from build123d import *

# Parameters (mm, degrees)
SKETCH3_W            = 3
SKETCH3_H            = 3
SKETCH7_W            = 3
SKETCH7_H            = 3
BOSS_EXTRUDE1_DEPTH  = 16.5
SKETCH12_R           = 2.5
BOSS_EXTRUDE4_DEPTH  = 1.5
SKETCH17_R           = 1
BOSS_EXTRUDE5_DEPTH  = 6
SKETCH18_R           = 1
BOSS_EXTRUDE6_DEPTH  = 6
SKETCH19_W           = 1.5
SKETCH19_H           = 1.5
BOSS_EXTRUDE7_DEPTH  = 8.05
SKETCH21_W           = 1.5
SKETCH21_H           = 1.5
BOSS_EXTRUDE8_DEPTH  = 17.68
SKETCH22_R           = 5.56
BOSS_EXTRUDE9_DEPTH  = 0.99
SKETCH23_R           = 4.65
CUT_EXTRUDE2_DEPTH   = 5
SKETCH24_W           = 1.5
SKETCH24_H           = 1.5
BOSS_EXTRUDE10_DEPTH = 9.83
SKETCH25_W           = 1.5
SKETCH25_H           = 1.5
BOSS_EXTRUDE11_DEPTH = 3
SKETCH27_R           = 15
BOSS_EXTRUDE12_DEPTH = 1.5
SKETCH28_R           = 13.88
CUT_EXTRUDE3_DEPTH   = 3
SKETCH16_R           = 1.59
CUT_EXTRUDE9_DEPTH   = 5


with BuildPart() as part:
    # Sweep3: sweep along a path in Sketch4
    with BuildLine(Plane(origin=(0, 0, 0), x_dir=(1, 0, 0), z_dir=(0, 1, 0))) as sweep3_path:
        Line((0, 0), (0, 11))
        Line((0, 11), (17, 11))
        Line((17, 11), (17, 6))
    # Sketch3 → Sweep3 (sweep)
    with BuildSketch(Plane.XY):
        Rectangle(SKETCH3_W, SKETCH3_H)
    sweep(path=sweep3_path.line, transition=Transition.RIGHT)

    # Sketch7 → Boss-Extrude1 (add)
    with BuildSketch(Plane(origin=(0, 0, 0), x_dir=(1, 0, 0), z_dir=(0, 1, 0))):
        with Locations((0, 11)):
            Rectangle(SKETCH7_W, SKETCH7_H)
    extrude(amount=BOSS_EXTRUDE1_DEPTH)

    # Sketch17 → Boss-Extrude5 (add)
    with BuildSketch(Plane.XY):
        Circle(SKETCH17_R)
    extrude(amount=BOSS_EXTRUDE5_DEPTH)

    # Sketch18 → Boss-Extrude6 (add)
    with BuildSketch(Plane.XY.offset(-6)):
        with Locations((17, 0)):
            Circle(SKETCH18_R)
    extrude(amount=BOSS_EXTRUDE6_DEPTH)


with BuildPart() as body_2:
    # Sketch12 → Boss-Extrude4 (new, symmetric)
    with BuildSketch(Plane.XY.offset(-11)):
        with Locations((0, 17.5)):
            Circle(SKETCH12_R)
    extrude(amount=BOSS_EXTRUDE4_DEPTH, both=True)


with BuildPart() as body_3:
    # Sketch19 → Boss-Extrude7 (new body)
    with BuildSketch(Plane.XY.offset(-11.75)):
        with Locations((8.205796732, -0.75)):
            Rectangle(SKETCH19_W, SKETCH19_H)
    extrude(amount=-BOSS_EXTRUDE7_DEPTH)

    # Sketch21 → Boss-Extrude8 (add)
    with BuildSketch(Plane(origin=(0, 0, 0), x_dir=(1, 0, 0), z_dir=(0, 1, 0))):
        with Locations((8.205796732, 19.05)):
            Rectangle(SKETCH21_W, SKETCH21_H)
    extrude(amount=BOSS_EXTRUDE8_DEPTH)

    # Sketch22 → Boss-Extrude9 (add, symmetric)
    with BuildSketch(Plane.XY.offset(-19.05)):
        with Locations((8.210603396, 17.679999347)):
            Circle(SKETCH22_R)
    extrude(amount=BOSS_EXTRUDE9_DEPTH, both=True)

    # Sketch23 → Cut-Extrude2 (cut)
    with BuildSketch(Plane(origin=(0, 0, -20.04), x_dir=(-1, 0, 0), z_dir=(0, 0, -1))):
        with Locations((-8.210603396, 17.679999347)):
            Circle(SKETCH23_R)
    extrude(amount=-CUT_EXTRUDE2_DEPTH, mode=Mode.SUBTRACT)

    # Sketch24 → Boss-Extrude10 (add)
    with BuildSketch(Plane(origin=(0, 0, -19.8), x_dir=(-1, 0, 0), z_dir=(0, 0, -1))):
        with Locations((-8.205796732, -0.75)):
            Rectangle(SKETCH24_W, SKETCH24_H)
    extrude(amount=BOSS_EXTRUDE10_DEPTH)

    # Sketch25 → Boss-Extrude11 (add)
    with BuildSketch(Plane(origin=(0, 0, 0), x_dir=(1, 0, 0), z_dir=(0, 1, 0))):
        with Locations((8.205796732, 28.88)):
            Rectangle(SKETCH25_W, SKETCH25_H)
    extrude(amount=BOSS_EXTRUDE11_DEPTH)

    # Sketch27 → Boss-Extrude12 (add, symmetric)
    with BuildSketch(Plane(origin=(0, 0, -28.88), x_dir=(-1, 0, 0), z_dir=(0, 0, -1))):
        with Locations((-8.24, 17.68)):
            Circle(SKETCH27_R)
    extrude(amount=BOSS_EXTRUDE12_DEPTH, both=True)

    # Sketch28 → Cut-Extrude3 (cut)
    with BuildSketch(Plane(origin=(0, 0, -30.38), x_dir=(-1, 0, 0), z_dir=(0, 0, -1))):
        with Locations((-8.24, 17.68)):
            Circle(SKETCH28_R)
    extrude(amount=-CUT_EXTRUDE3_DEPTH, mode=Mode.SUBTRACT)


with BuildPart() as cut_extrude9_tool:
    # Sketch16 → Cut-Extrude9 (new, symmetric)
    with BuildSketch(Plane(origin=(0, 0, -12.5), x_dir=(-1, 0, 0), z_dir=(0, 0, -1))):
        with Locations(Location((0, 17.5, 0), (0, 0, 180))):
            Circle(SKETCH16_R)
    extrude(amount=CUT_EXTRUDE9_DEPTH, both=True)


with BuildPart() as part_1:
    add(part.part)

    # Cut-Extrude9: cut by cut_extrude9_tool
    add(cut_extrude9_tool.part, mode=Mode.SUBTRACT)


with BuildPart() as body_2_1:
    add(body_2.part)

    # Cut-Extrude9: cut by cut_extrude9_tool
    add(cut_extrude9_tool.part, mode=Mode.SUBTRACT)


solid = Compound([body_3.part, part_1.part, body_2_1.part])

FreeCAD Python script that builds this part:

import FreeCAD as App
import Part
import Sketcher
from FreeCAD import Vector

doc = App.newDocument("Part")
params = doc.addObject("Spreadsheet::Sheet", "Params")
for row, (alias, value) in enumerate([
    ("sketch1_width", "3 mm"),
    ("sketch2_width", "17 mm"),
    ("sketch2_height", "11 mm"),
    ("sketch2_height2", "5 mm"),
    ("sketch3_width", "3 mm"),
    ("pad1_length", "16.5 mm"),
    ("sketch4_diameter", "2 mm"),
    ("pad2_length", "6 mm"),
    ("sketch5_diameter", "2 mm"),
    ("pad3_length", "6 mm"),
    ("sketch6_diameter", "5 mm"),
    ("pad4_length", "3 mm"),
    ("sketch7_width", "1.5 mm"),
    ("pad5_length", "8.05 mm"),
    ("sketch8_width", "1.5 mm"),
    ("pad6_length", "17.68 mm"),
    ("sketch9_diameter", "11.12 mm"),
    ("pad7_length", "1.98 mm"),
    ("sketch10_diameter", "9.3 mm"),
    ("pocket1_length", "5 mm"),
    ("sketch11_width", "1.5 mm"),
    ("pad8_length", "9.83 mm"),
    ("sketch12_width", "1.5 mm"),
    ("pad9_length", "3 mm"),
    ("sketch13_diameter", "30 mm"),
    ("pad10_length", "3 mm"),
    ("sketch14_diameter", "27.76 mm"),
    ("pocket2_length", "3 mm"),
    ("sketch15_diameter", "3.18 mm"),
    ("pad11_length", "10 mm"),
], start=1):
    params.set(f"A{row}", alias)
    params.set(f"B{row}", "=" + value)
    params.setAlias(f"B{row}", alias)

body = doc.addObject("PartDesign::Body", "Body")

# Sketch on XY plane
sketch1 = body.newObject("Sketcher::SketchObject", "Sketch")
sketch1.AttachmentSupport = (doc.getObject("XY_Plane"), [""])
sketch1.MapMode = "FlatFace"
sketch1.addGeometry([
    Part.LineSegment(Vector(-1.5, 1.5, 0), Vector(-1.5, -1.5, 0)),
    Part.LineSegment(Vector(-1.5, -1.5, 0), Vector(1.5, -1.5, 0)),
    Part.LineSegment(Vector(1.5, -1.5, 0), Vector(1.5, 1.5, 0)),
    Part.LineSegment(Vector(1.5, 1.5, 0), Vector(-1.5, 1.5, 0)),
], False)
sketch1.addConstraint([
    Sketcher.Constraint("Coincident", 0, 2, 1, 1),
    Sketcher.Constraint("Coincident", 1, 2, 2, 1),
    Sketcher.Constraint("Coincident", 2, 2, 3, 1),
    Sketcher.Constraint("Coincident", 3, 2, 0, 1),
    Sketcher.Constraint("Vertical", 0),
    Sketcher.Constraint("Horizontal", 1),
    Sketcher.Constraint("Vertical", 2),
    Sketcher.Constraint("Horizontal", 3),
    Sketcher.Constraint("Symmetric", 0, 2, 2, 2, -1, 1),
    Sketcher.Constraint("Equal", 3, 0),
    Sketcher.Constraint("DistanceX", 1, 1, 1, 2, 3.0),
])
sketch1.setExpression("Constraints[10]", "Params.sketch1_width")

# Sketch on XZ plane
sketch2 = body.newObject("Sketcher::SketchObject", "Sketch001")
sketch2.AttachmentSupport = (doc.getObject("XZ_Plane"), [""])
sketch2.MapMode = "FlatFace"
sketch2.addGeometry([
    Part.LineSegment(Vector(0, 0, 0), Vector(0, -11, 0)),
    Part.LineSegment(Vector(0, -11, 0), Vector(17, -11, 0)),
    Part.LineSegment(Vector(17, -11, 0), Vector(17, -6, 0)),
], False)
sketch2.addConstraint([
    Sketcher.Constraint("Coincident", 0, 2, 1, 1),
    Sketcher.Constraint("Coincident", 1, 2, 2, 1),
    Sketcher.Constraint("Vertical", 0),
    Sketcher.Constraint("Horizontal", 1),
    Sketcher.Constraint("Vertical", 2),
    Sketcher.Constraint("Coincident", 0, 1, -1, 1),
    Sketcher.Constraint("DistanceX", 1, 1, 1, 2, 17.0),
    Sketcher.Constraint("DistanceY", 0, 2, 0, 1, 11.0),
    Sketcher.Constraint("DistanceY", 2, 1, 2, 2, 5.0),
])
sketch2.setExpression("Constraints[6]", "Params.sketch2_width")
sketch2.setExpression("Constraints[7]", "Params.sketch2_height")
sketch2.setExpression("Constraints[8]", "Params.sketch2_height2")
doc.recompute()

additivepipe = body.newObject("PartDesign::AdditivePipe", "AdditivePipe")
additivepipe.Profile = sketch1
additivepipe.Spine = (sketch2, ["Edge1", "Edge2", "Edge3"])
additivepipe.Transition = "Right corner"

# Sketch on XZ plane
sketch3 = body.newObject("Sketcher::SketchObject", "Sketch002")
sketch3.AttachmentSupport = (doc.getObject("XZ_Plane"), [""])
sketch3.MapMode = "FlatFace"
sketch3.addGeometry([
    Part.LineSegment(Vector(-1.5, -12.5, 0), Vector(-1.5, -9.5, 0)),
    Part.LineSegment(Vector(-1.5, -9.5, 0), Vector(1.5, -9.5, 0)),
    Part.LineSegment(Vector(1.5, -9.5, 0), Vector(1.5, -12.5, 0)),
    Part.LineSegment(Vector(1.5, -12.5, 0), Vector(-1.5, -12.5, 0)),
], False)
sketch3.addConstraint([
    Sketcher.Constraint("Coincident", 0, 2, 1, 1),
    Sketcher.Constraint("Coincident", 1, 2, 2, 1),
    Sketcher.Constraint("Coincident", 2, 2, 3, 1),
    Sketcher.Constraint("Coincident", 3, 2, 0, 1),
    Sketcher.Constraint("Vertical", 0),
    Sketcher.Constraint("Horizontal", 1),
    Sketcher.Constraint("Vertical", 2),
    Sketcher.Constraint("Horizontal", 3),
    Sketcher.Constraint("Equal", 3, 0),
    Sketcher.Constraint("DistanceX", 1, 1, 1, 2, 3.0),
    Sketcher.Constraint("DistanceX", 0, 2, -1, 1, 1.5),
    Sketcher.Constraint("DistanceY", 0, 2, -1, 1, 9.5),
])
sketch3.setExpression("Constraints[9]", "Params.sketch3_width")
pad1 = body.newObject("PartDesign::Pad", "Pad")
pad1.Profile = sketch3
pad1.setExpression("Length", "Params.pad1_length")
pad1.Reversed = True

# Sketch on XY plane
sketch4 = body.newObject("Sketcher::SketchObject", "Sketch003")
sketch4.AttachmentSupport = (doc.getObject("XY_Plane"), [""])
sketch4.MapMode = "FlatFace"
sketch4.addGeometry(Part.Circle(Vector(0, 0, 0), Vector(0, 0, 1), 1), False)
sketch4.addConstraint([
    Sketcher.Constraint("Coincident", 0, 3, -1, 1),
    Sketcher.Constraint("Diameter", 0, 2.0),
])
sketch4.setExpression("Constraints[1]", "Params.sketch4_diameter")
pad2 = body.newObject("PartDesign::Pad", "Pad001")
pad2.Profile = sketch4
pad2.setExpression("Length", "Params.pad2_length")

# Sketch on XY plane
sketch5 = body.newObject("Sketcher::SketchObject", "Sketch004")
sketch5.AttachmentSupport = (doc.getObject("XY_Plane"), [""])
sketch5.MapMode = "FlatFace"
sketch5.AttachmentOffset = App.Placement(Vector(0, 0, -6), App.Rotation())
sketch5.addGeometry(Part.Circle(Vector(17, 0, 0), Vector(0, 0, 1), 1), False)
sketch5.addConstraint([
    Sketcher.Constraint("PointOnObject", 0, 3, -1),
    Sketcher.Constraint("Diameter", 0, 2.0),
    Sketcher.Constraint("DistanceX", -1, 1, 0, 3, 17.0),
])
sketch5.setExpression("Constraints[1]", "Params.sketch5_diameter")
pad3 = body.newObject("PartDesign::Pad", "Pad002")
pad3.Profile = sketch5
pad3.setExpression("Length", "Params.pad3_length")
body2 = doc.addObject("PartDesign::Body", "Body001")

# Sketch on XY plane
sketch6 = body2.newObject("Sketcher::SketchObject", "Sketch005")
sketch6.AttachmentSupport = (doc.getObject("XY_Plane001"), [""])
sketch6.MapMode = "FlatFace"
sketch6.AttachmentOffset = App.Placement(Vector(0, 0, -11), App.Rotation())
sketch6.addGeometry(Part.Circle(Vector(0, 17.5, 0), Vector(0, 0, 1), 2.5), False)
sketch6.addConstraint([
    Sketcher.Constraint("PointOnObject", 0, 3, -2),
    Sketcher.Constraint("Diameter", 0, 5.0),
    Sketcher.Constraint("DistanceY", -1, 1, 0, 3, 17.5),
])
sketch6.setExpression("Constraints[1]", "Params.sketch6_diameter")
pad4 = body2.newObject("PartDesign::Pad", "Pad003")
pad4.Profile = sketch6
pad4.setExpression("Length", "Params.pad4_length")
pad4.Midplane = True
body3 = doc.addObject("PartDesign::Body", "Body002")

# Sketch on XY plane
sketch7 = body3.newObject("Sketcher::SketchObject", "Sketch006")
sketch7.AttachmentSupport = (doc.getObject("XY_Plane002"), [""])
sketch7.MapMode = "FlatFace"
sketch7.AttachmentOffset = App.Placement(Vector(0, 0, -11.75), App.Rotation())
sketch7.addGeometry([
    Part.LineSegment(Vector(7.5, 0, 0), Vector(7.5, -1.5, 0)),
    Part.LineSegment(Vector(7.5, -1.5, 0), Vector(9, -1.5, 0)),
    Part.LineSegment(Vector(9, -1.5, 0), Vector(9, 0, 0)),
    Part.LineSegment(Vector(9, 0, 0), Vector(7.5, 0, 0)),
], False)
sketch7.addConstraint([
    Sketcher.Constraint("Coincident", 0, 2, 1, 1),
    Sketcher.Constraint("Coincident", 1, 2, 2, 1),
    Sketcher.Constraint("Coincident", 2, 2, 3, 1),
    Sketcher.Constraint("Coincident", 3, 2, 0, 1),
    Sketcher.Constraint("Vertical", 0),
    Sketcher.Constraint("Horizontal", 1),
    Sketcher.Constraint("Vertical", 2),
    Sketcher.Constraint("Horizontal", 3),
    Sketcher.Constraint("PointOnObject", 2, 2, -1),
    Sketcher.Constraint("Equal", 3, 0),
    Sketcher.Constraint("DistanceX", 1, 1, 1, 2, 1.5),
    Sketcher.Constraint("DistanceX", -1, 1, 0, 2, 7.455797),
])
sketch7.setExpression("Constraints[10]", "Params.sketch7_width")
pad5 = body3.newObject("PartDesign::Pad", "Pad004")
pad5.Profile = sketch7
pad5.setExpression("Length", "Params.pad5_length")
pad5.Reversed = True

# Sketch on XZ plane
sketch8 = body3.newObject("Sketcher::SketchObject", "Sketch007")
sketch8.AttachmentSupport = (doc.getObject("XZ_Plane002"), [""])
sketch8.MapMode = "FlatFace"
sketch8.addGeometry([
    Part.LineSegment(Vector(7.5, -19.8, 0), Vector(7.5, -18.3, 0)),
    Part.LineSegment(Vector(7.5, -18.3, 0), Vector(9, -18.3, 0)),
    Part.LineSegment(Vector(9, -18.3, 0), Vector(9, -19.8, 0)),
    Part.LineSegment(Vector(9, -19.8, 0), Vector(7.5, -19.8, 0)),
], False)
sketch8.addConstraint([
    Sketcher.Constraint("Coincident", 0, 2, 1, 1),
    Sketcher.Constraint("Coincident", 1, 2, 2, 1),
    Sketcher.Constraint("Coincident", 2, 2, 3, 1),
    Sketcher.Constraint("Coincident", 3, 2, 0, 1),
    Sketcher.Constraint("Vertical", 0),
    Sketcher.Constraint("Horizontal", 1),
    Sketcher.Constraint("Vertical", 2),
    Sketcher.Constraint("Horizontal", 3),
    Sketcher.Constraint("Equal", 3, 0),
    Sketcher.Constraint("DistanceX", 1, 1, 1, 2, 1.5),
    Sketcher.Constraint("DistanceY", 0, 2, -1, 1, 18.3),
    Sketcher.Constraint("DistanceX", -1, 1, 0, 2, 7.455797),
])
sketch8.setExpression("Constraints[9]", "Params.sketch8_width")
pad6 = body3.newObject("PartDesign::Pad", "Pad005")
pad6.Profile = sketch8
pad6.setExpression("Length", "Params.pad6_length")
pad6.Reversed = True

# Sketch on XY plane
sketch9 = body3.newObject("Sketcher::SketchObject", "Sketch008")
sketch9.AttachmentSupport = (doc.getObject("XY_Plane002"), [""])
sketch9.MapMode = "FlatFace"
sketch9.AttachmentOffset = App.Placement(Vector(0, 0, -19.05), App.Rotation())
sketch9.addGeometry(Part.Circle(Vector(8, 18, 0), Vector(0, 0, 1), 6), False)
sketch9.addConstraint([
    Sketcher.Constraint("Diameter", 0, 11.12),
    Sketcher.Constraint("DistanceY", -1, 1, 0, 3, 17.679999),
    Sketcher.Constraint("DistanceX", -1, 1, 0, 3, 8.210603),
])
sketch9.setExpression("Constraints[0]", "Params.sketch9_diameter")
pad7 = body3.newObject("PartDesign::Pad", "Pad006")
pad7.Profile = sketch9
pad7.setExpression("Length", "Params.pad7_length")
pad7.Midplane = True

# Sketch on XY plane
sketch10 = body3.newObject("Sketcher::SketchObject", "Sketch009")
sketch10.AttachmentSupport = (doc.getObject("XY_Plane002"), [""])
sketch10.MapMode = "FlatFace"
sketch10.AttachmentOffset = App.Placement(Vector(0, 0, -20.04), App.Rotation())
sketch10.addGeometry(Part.Circle(Vector(8.2, 17.7, 0), Vector(0, 0, 1), 4.7), False)
sketch10.addConstraint([
    Sketcher.Constraint("Diameter", 0, 9.3),
    Sketcher.Constraint("DistanceY", -1, 1, 0, 3, 17.679999),
    Sketcher.Constraint("DistanceX", -1, 1, 0, 3, 8.210603),
])
sketch10.setExpression("Constraints[0]", "Params.sketch10_diameter")
pocket1 = body3.newObject("PartDesign::Pocket", "Pocket")
pocket1.Profile = sketch10
pocket1.setExpression("Length", "Params.pocket1_length")
pocket1.Reversed = True

# Sketch on XY plane
sketch11 = body3.newObject("Sketcher::SketchObject", "Sketch010")
sketch11.AttachmentSupport = (doc.getObject("XY_Plane002"), [""])
sketch11.MapMode = "FlatFace"
sketch11.AttachmentOffset = App.Placement(Vector(0, 0, -19.8), App.Rotation())
sketch11.addGeometry([
    Part.LineSegment(Vector(9, 0, 0), Vector(9, -1.5, 0)),
    Part.LineSegment(Vector(9, -1.5, 0), Vector(7.5, -1.5, 0)),
    Part.LineSegment(Vector(7.5, -1.5, 0), Vector(7.5, 0, 0)),
    Part.LineSegment(Vector(7.5, 0, 0), Vector(9, 0, 0)),
], False)
sketch11.addConstraint([
    Sketcher.Constraint("Coincident", 0, 2, 1, 1),
    Sketcher.Constraint("Coincident", 1, 2, 2, 1),
    Sketcher.Constraint("Coincident", 2, 2, 3, 1),
    Sketcher.Constraint("Coincident", 3, 2, 0, 1),
    Sketcher.Constraint("Vertical", 0),
    Sketcher.Constraint("Horizontal", 1),
    Sketcher.Constraint("Vertical", 2),
    Sketcher.Constraint("Horizontal", 3),
    Sketcher.Constraint("PointOnObject", 2, 2, -1),
    Sketcher.Constraint("Equal", 3, 0),
    Sketcher.Constraint("DistanceX", 1, 2, 1, 1, 1.5),
    Sketcher.Constraint("DistanceX", -1, 1, 0, 2, 8.955797),
])
sketch11.setExpression("Constraints[10]", "Params.sketch11_width")
pad8 = body3.newObject("PartDesign::Pad", "Pad007")
pad8.Profile = sketch11
pad8.setExpression("Length", "Params.pad8_length")
pad8.Reversed = True

# Sketch on XZ plane
sketch12 = body3.newObject("Sketcher::SketchObject", "Sketch011")
sketch12.AttachmentSupport = (doc.getObject("XZ_Plane002"), [""])
sketch12.MapMode = "FlatFace"
sketch12.addGeometry([
    Part.LineSegment(Vector(7.5, -29.6, 0), Vector(7.5, -28.1, 0)),
    Part.LineSegment(Vector(7.5, -28.1, 0), Vector(9, -28.1, 0)),
    Part.LineSegment(Vector(9, -28.1, 0), Vector(9, -29.6, 0)),
    Part.LineSegment(Vector(9, -29.6, 0), Vector(7.5, -29.6, 0)),
], False)
sketch12.addConstraint([
    Sketcher.Constraint("Coincident", 0, 2, 1, 1),
    Sketcher.Constraint("Coincident", 1, 2, 2, 1),
    Sketcher.Constraint("Coincident", 2, 2, 3, 1),
    Sketcher.Constraint("Coincident", 3, 2, 0, 1),
    Sketcher.Constraint("Vertical", 0),
    Sketcher.Constraint("Horizontal", 1),
    Sketcher.Constraint("Vertical", 2),
    Sketcher.Constraint("Horizontal", 3),
    Sketcher.Constraint("Equal", 3, 0),
    Sketcher.Constraint("DistanceX", 1, 1, 1, 2, 1.5),
    Sketcher.Constraint("DistanceY", 0, 2, -1, 1, 28.13),
    Sketcher.Constraint("DistanceX", -1, 1, 0, 2, 7.455797),
])
sketch12.setExpression("Constraints[9]", "Params.sketch12_width")
pad9 = body3.newObject("PartDesign::Pad", "Pad008")
pad9.Profile = sketch12
pad9.setExpression("Length", "Params.pad9_length")
pad9.Reversed = True

# Sketch on XY plane
sketch13 = body3.newObject("Sketcher::SketchObject", "Sketch012")
sketch13.AttachmentSupport = (doc.getObject("XY_Plane002"), [""])
sketch13.MapMode = "FlatFace"
sketch13.AttachmentOffset = App.Placement(Vector(0, 0, -28.88), App.Rotation())
sketch13.addGeometry(Part.Circle(Vector(8, 18, 0), Vector(0, 0, 1), 15), False)
sketch13.addConstraint([
    Sketcher.Constraint("Diameter", 0, 30.0),
    Sketcher.Constraint("DistanceX", -1, 1, 0, 3, 8.24),
    Sketcher.Constraint("DistanceY", -1, 1, 0, 3, 17.68),
])
sketch13.setExpression("Constraints[0]", "Params.sketch13_diameter")
pad10 = body3.newObject("PartDesign::Pad", "Pad009")
pad10.Profile = sketch13
pad10.setExpression("Length", "Params.pad10_length")
pad10.Midplane = True

# Sketch on XY plane
sketch14 = body3.newObject("Sketcher::SketchObject", "Sketch013")
sketch14.AttachmentSupport = (doc.getObject("XY_Plane002"), [""])
sketch14.MapMode = "FlatFace"
sketch14.AttachmentOffset = App.Placement(Vector(0, 0, -30.38), App.Rotation())
sketch14.addGeometry(Part.Circle(Vector(8, 18, 0), Vector(0, 0, 1), 14), False)
sketch14.addConstraint([
    Sketcher.Constraint("Diameter", 0, 27.76),
    Sketcher.Constraint("DistanceX", -1, 1, 0, 3, 8.24),
    Sketcher.Constraint("DistanceY", -1, 1, 0, 3, 17.68),
])
sketch14.setExpression("Constraints[0]", "Params.sketch14_diameter")
pocket2 = body3.newObject("PartDesign::Pocket", "Pocket001")
pocket2.Profile = sketch14
pocket2.setExpression("Length", "Params.pocket2_length")
pocket2.Reversed = True
body4 = doc.addObject("PartDesign::Body", "Body003")

# Sketch on XY plane
sketch15 = body4.newObject("Sketcher::SketchObject", "Sketch014")
sketch15.AttachmentSupport = (doc.getObject("XY_Plane003"), [""])
sketch15.MapMode = "FlatFace"
sketch15.AttachmentOffset = App.Placement(Vector(0, 0, -12.5), App.Rotation())
sketch15.addGeometry(Part.Circle(Vector(0, 17.5, 0), Vector(0, 0, 1), 1.6), False)
sketch15.addConstraint([
    Sketcher.Constraint("PointOnObject", 0, 3, -2),
    Sketcher.Constraint("Diameter", 0, 3.18),
    Sketcher.Constraint("DistanceY", -1, 1, 0, 3, 17.5),
])
sketch15.setExpression("Constraints[1]", "Params.sketch15_diameter")
pad11 = body4.newObject("PartDesign::Pad", "Pad010")
pad11.Profile = sketch15
pad11.setExpression("Length", "Params.pad11_length")
pad11.Midplane = True
doc.recompute()

body5 = doc.addObject("PartDesign::Body", "Body004")
body5.BaseFeature = body4
boolean = body.newObject("PartDesign::Boolean", "Boolean")
boolean.Type = "Cut"
boolean.addObjects([body5])
doc.recompute()

boolean2 = body2.newObject("PartDesign::Boolean", "Boolean001")
boolean2.Type = "Cut"
boolean2.addObjects([body4])

doc.recompute()
